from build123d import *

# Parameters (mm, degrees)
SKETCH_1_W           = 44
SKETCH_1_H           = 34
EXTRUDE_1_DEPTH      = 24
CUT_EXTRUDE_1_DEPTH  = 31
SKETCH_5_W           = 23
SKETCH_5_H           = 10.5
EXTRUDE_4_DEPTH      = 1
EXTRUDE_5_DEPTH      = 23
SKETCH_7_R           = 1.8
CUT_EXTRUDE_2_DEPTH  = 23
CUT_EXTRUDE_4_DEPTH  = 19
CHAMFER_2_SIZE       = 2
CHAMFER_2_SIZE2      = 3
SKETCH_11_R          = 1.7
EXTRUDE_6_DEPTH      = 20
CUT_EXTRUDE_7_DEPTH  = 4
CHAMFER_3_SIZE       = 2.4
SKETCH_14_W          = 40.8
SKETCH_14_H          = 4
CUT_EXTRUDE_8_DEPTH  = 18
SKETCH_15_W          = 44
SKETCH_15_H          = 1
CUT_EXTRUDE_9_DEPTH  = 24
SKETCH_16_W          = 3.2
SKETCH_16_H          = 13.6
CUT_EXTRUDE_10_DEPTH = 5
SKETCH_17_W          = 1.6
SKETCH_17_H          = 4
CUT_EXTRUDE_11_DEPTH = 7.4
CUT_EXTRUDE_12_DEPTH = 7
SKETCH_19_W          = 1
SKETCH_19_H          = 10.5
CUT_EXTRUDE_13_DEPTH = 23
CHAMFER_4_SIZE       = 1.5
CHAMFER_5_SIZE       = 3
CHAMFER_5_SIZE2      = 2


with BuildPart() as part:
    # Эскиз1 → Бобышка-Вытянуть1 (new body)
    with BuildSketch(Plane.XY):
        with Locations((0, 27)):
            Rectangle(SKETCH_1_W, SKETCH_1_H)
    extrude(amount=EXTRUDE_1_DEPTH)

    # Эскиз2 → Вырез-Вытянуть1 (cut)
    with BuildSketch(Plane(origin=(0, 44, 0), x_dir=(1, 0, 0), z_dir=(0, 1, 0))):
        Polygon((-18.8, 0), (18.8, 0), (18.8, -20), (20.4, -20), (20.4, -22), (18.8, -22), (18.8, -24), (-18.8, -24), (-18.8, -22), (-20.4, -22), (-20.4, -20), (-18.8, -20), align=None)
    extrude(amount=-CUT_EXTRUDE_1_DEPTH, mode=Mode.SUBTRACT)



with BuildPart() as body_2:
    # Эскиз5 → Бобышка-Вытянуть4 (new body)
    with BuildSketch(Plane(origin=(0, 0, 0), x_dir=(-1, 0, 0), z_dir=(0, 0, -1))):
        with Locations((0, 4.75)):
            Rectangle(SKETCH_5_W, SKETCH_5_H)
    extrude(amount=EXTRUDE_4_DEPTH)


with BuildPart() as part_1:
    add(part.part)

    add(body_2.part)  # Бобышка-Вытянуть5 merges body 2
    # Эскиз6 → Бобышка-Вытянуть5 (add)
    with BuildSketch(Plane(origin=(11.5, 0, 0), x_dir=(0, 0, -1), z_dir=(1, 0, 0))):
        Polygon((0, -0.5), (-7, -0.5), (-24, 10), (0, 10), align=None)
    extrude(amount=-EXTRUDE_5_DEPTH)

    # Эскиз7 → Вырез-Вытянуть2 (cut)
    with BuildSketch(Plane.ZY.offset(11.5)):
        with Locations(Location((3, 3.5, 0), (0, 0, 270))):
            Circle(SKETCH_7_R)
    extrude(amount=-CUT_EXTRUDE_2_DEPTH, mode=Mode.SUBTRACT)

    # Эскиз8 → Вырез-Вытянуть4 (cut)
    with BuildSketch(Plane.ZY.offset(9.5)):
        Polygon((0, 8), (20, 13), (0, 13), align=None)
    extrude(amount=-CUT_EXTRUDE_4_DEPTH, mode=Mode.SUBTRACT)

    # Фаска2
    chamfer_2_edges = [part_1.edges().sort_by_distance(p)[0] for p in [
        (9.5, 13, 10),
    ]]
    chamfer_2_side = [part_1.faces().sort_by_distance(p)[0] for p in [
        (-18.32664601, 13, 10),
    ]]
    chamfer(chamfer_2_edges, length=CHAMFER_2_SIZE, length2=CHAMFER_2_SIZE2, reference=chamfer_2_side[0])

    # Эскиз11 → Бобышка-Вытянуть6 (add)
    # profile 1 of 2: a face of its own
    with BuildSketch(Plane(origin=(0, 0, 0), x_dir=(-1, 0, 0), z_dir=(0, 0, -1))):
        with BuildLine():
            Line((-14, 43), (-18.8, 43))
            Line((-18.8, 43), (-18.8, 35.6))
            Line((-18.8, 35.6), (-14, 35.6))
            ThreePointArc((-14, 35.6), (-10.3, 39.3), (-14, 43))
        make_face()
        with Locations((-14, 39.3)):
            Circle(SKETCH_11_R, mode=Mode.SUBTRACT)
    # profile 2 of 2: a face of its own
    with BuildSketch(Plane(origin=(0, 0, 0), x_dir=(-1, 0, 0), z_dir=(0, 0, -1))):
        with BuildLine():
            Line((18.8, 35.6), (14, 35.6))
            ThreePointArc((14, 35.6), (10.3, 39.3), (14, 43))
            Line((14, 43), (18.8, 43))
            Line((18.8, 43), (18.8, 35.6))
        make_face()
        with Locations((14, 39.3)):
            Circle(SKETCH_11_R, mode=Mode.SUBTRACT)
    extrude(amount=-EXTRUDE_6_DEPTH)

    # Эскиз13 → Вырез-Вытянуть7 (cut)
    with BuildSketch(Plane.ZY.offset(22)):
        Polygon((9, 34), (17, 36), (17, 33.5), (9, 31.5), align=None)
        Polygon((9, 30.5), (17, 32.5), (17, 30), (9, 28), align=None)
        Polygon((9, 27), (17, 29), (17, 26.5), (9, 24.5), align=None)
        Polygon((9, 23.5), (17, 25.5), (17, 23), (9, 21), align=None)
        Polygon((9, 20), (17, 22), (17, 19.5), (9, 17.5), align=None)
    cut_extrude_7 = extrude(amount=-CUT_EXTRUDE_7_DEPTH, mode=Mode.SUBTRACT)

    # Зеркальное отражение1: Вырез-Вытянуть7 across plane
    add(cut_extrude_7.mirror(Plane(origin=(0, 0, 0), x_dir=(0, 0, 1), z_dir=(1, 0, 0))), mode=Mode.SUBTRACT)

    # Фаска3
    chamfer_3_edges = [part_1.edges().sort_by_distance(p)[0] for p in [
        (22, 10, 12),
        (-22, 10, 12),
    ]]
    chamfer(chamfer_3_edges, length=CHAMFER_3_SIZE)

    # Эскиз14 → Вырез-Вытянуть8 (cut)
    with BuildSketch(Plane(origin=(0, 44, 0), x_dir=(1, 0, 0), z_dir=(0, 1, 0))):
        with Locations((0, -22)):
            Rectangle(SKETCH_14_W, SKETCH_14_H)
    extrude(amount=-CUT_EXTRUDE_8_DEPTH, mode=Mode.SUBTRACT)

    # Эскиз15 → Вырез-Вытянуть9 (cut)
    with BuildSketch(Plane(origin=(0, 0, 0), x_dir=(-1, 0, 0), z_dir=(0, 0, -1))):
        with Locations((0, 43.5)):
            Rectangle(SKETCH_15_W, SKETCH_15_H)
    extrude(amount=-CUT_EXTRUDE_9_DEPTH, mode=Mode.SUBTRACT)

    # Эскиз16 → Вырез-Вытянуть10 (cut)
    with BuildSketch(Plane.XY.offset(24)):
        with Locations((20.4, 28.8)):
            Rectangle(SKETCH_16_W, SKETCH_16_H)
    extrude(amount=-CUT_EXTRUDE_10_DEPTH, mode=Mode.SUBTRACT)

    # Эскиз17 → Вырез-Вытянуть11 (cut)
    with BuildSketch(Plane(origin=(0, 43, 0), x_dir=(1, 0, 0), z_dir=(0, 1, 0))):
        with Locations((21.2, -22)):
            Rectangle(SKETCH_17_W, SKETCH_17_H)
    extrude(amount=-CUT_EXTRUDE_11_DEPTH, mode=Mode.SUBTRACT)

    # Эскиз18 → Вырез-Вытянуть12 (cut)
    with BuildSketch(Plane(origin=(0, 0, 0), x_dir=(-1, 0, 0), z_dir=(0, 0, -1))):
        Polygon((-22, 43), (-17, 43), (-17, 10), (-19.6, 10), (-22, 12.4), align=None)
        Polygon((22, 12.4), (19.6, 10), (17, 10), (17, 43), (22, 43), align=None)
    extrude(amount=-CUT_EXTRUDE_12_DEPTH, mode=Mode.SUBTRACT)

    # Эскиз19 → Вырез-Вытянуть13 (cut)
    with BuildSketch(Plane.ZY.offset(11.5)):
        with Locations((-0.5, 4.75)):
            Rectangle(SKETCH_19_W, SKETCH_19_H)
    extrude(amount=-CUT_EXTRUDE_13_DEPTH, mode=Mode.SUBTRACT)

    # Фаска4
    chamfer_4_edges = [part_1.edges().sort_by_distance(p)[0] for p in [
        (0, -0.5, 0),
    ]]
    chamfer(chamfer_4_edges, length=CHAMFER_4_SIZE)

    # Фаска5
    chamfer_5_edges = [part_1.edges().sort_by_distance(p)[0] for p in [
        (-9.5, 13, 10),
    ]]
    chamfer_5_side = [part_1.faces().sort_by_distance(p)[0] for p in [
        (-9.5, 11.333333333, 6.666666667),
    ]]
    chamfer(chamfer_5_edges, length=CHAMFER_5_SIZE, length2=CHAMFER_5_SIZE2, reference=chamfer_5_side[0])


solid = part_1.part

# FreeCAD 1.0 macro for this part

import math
import FreeCAD as App
import Part
import Sketcher

V = App.Vector
Q = App.Units.Quantity


def edges_at(feature, points):
    """Names of the edges that pass closest to the given points."""
    edges = feature.Shape.Edges
    near = lambda p: min(range(len(edges)), key=lambda i: edges[i].distToShape(Part.Vertex(*p))[0])
    return sorted({f"Edge{near(p) + 1}" for p in points})


def add_polygon(sketch, points):
    """Adds a closed chain of lines whose ends are joined by coincident constraints."""
    first, n = sketch.GeometryCount, len(points)
    for a, b in zip(points, points[1:] + points[:1]):
        sketch.addGeometry(Part.LineSegment(App.Vector(*a, 0), App.Vector(*b, 0)), False)
    for i in range(n):
        sketch.addConstraint(Sketcher.Constraint("Coincident", first + i, 2, first + (i + 1) % n, 1))

doc = App.newDocument("Part")
body = doc.addObject("PartDesign::Body", "Body")

sketch1 = doc.addObject("Sketcher::SketchObject", "Sketch")
body.addObject(sketch1)
sketch1.AttachmentSupport = (doc.XY_Plane, [""])
sketch1.MapMode = "FlatFace"
add_polygon(sketch1, [(-22, 44), (-22, 10), (22, 10), (22, 44)])
sketch1.addConstraint([
    Sketcher.Constraint("Vertical", 0),
    Sketcher.Constraint("Horizontal", 1),
    Sketcher.Constraint("Vertical", 2),
    Sketcher.Constraint("Horizontal", 3),
    Sketcher.Constraint("DistanceX", 1, 1, 1, 2, Q("44 mm")),
    Sketcher.Constraint("DistanceY", 0, 2, 0, 1, Q("34 mm")),
    Sketcher.Constraint("DistanceX", 0, 2, -1, 1, Q("22 mm")),
    Sketcher.Constraint("DistanceY", -1, 1, 0, 2, Q("10 mm")),
])
pad1 = doc.addObject("PartDesign::Pad", "Pad")
body.addObject(pad1)
pad1.Profile = sketch1
pad1.Length = 24

sketch2 = doc.addObject("Sketcher::SketchObject", "Sketch001")
body.addObject(sketch2)
sketch2.AttachmentSupport = (doc.XZ_Plane, [""])
sketch2.MapMode = "FlatFace"
sketch2.AttachmentOffset = App.Placement(V(0, 0, -44), App.Rotation())
add_polygon(sketch2, [(18.8, 0), (-18.8, 0), (-18.8, 20), (-20.4, 20), (-20.4, 22), (-18.8, 22), (-18.8, 24), (18.8, 24), (18.8, 22), (20.4, 22), (20.4, 20), (18.8, 20)])
sketch2.addConstraint([
    Sketcher.Constraint("Horizontal", 0),
    Sketcher.Constraint("Vertical", 1),
    Sketcher.Constraint("Horizontal", 2),
    Sketcher.Constraint("Vertical", 3),
    Sketcher.Constraint("Horizontal", 4),
    Sketcher.Constraint("Vertical", 5),
    Sketcher.Constraint("Horizontal", 6),
    Sketcher.Constraint("Vertical", 7),
    Sketcher.Constraint("Horizontal", 8),
    Sketcher.Constraint("Vertical", 9),
    Sketcher.Constraint("Horizontal", 10),
    Sketcher.Constraint("Vertical", 11),
    Sketcher.Constraint("Symmetric", 0, 2, 11, 2, -1, 1),
    Sketcher.Constraint("Symmetric", 4, 2, 7, 2, -2),
    Sketcher.Constraint("Symmetric", 2, 2, 9, 2, -2),
    Sketcher.Constraint("Vertical", 1, 2, 4, 2),
    Sketcher.Constraint("Equal", 3, 5),
    Sketcher.Constraint("DistanceY", 1, 1, 1, 2, Q("20 mm")),
    Sketcher.Constraint("DistanceY", 3, 1, 3, 2, Q("2 mm")),
    Sketcher.Constraint("DistanceX", 0, 2, 0, 1, Q("37.6 mm")),
    Sketcher.Constraint("DistanceX", 2, 2, 2, 1, Q("1.6 mm")),
])
pocket1 = doc.addObject("PartDesign::Pocket", "Pocket")
body.addObject(pocket1)
pocket1.Profile = sketch2
pocket1.Length = 31
pocket1.Reversed = True
body2 = doc.addObject("PartDesign::Body", "Body001")

sketch3 = doc.addObject("Sketcher::SketchObject", "Sketch002")
body2.addObject(sketch3)
sketch3.AttachmentSupport = (doc.getObject("XY_Plane001"), [""])
sketch3.MapMode = "FlatFace"
add_polygon(sketch3, [(12, 10), (12, 0), (-12, 0), (-12, 10)])
sketch3.addConstraint([
    Sketcher.Constraint("Vertical", 0),
    Sketcher.Constraint("Horizontal", 1),
    Sketcher.Constraint("Vertical", 2),
    Sketcher.Constraint("Horizontal", 3),
    Sketcher.Constraint("DistanceX", 1, 2, 1, 1, Q("23 mm")),
    Sketcher.Constraint("DistanceY", 0, 2, 0, 1, Q("10.5 mm")),
    Sketcher.Constraint("DistanceY", -1, 1, 2, 2, Q("10 mm")),
    Sketcher.Constraint("DistanceX", -1, 1, 0, 2, Q("11.5 mm")),
])
pad2 = doc.addObject("PartDesign::Pad", "Pad001")
body2.addObject(pad2)
pad2.Profile = sketch3
pad2.Length = 1
pad2.Reversed = True
body.AllowCompound = True
doc.recompute()

boolean = doc.addObject("PartDesign::Boolean", "Boolean")
body.addObject(boolean)
boolean.Type = "Fuse"
boolean.addObjects([body2])

sketch4 = doc.addObject("Sketcher::SketchObject", "Sketch003")
body.addObject(sketch4)
sketch4.AttachmentSupport = (doc.YZ_Plane, [""])
sketch4.MapMode = "FlatFace"
sketch4.AttachmentOffset = App.Placement(V(0, 0, 11.5), App.Rotation())
add_polygon(sketch4, [(0, 7), (0, 0), (10, 0), (10, 24)])
sketch4.addConstraint([
    Sketcher.Constraint("Vertical", 0),
    Sketcher.Constraint("Horizontal", 1),
    Sketcher.Constraint("Vertical", 2),
    Sketcher.Constraint("PointOnObject", 0, 2, -1),
    Sketcher.Constraint("DistanceY", 0, 2, 0, 1, Q("7 mm")),
    Sketcher.Constraint("DistanceY", 2, 1, 2, 2, Q("24 mm")),
    Sketcher.Constraint("DistanceX", 1, 1, 1, 2, Q("10.5 mm")),
    Sketcher.Constraint("DistanceX", -1, 1, 1, 2, Q("10 mm")),
])
pad3 = doc.addObject("PartDesign::Pad", "Pad002")
body.addObject(pad3)
pad3.Profile = sketch4
pad3.Length = 23
pad3.Reversed = True

sketch5 = doc.addObject("Sketcher::SketchObject", "Sketch004")
body.addObject(sketch5)
sketch5.AttachmentSupport = (doc.YZ_Plane, [""])
sketch5.MapMode = "FlatFace"
sketch5.AttachmentOffset = App.Placement(V(0, 0, -11.5), App.Rotation())
sketch5.addGeometry(Part.Circle(V(3.5, 3, 0), V(0, 0, 1), 1.8), False)
sketch5.addConstraint([
    Sketcher.Constraint("Diameter", 0, Q("3.6 mm")),
    Sketcher.Constraint("DistanceY", -1, 1, 0, 3, Q("3 mm")),
    Sketcher.Constraint("DistanceX", -1, 1, 0, 3, Q("3.5 mm")),
])
pocket2 = doc.addObject("PartDesign::Pocket", "Pocket001")
body.addObject(pocket2)
pocket2.Profile = sketch5
pocket2.Length = 23
pocket2.Reversed = True

sketch6 = doc.addObject("Sketcher::SketchObject", "Sketch005")
body.addObject(sketch6)
sketch6.AttachmentSupport = (doc.YZ_Plane, [""])
sketch6.MapMode = "FlatFace"
sketch6.AttachmentOffset = App.Placement(V(0, 0, -9.5), App.Rotation())
add_polygon(sketch6, [(8, 0), (13, 20), (13, 0)])
sketch6.addConstraint([
    Sketcher.Constraint("Vertical", 1),
    Sketcher.Constraint("Horizontal", 2),
    Sketcher.Constraint("PointOnObject", 1, 2, -1),
    Sketcher.Constraint("DistanceX", 2, 2, 2, 1, Q("5 mm")),
    Sketcher.Constraint("DistanceY", 1, 2, 1, 1, Q("20 mm")),
    Sketcher.Constraint("DistanceX", -1, 1, 0, 2, Q("13 mm")),
])
pocket3 = doc.addObject("PartDesign::Pocket", "Pocket002")
body.addObject(pocket3)
pocket3.Profile = sketch6
pocket3.Length = 19
pocket3.Reversed = True
doc.recompute()

chamfer = doc.addObject("PartDesign::Chamfer", "Chamfer")
body.addObject(chamfer)
chamfer.Base = (pocket3, edges_at(pocket3, [(9.5, 13, 10)]))
chamfer.ChamferType = "Two distances"
chamfer.Size = 2
chamfer.Size2 = 3

sketch7 = doc.addObject("Sketcher::SketchObject", "Sketch006")
body.addObject(sketch7)
sketch7.AttachmentSupport = (doc.XY_Plane, [""])
sketch7.MapMode = "FlatFace"
sketch7.addGeometry([
    Part.LineSegment(V(14, 43, 0), V(18.8, 43, 0)),
    Part.LineSegment(V(18.8, 43, 0), V(18.8, 35.6, 0)),
    Part.LineSegment(V(18.8, 35.6, 0), V(14, 35.6, 0)),
    Part.ArcOfCircle(Part.Circle(V(14, 39.3, 0), V(0, 0, 1), 3.7), math.radians(90), math.radians(270)),
    Part.Circle(V(14, 39.3, 0), V(0, 0, 1), 1.7),
    Part.LineSegment(V(-14, 35.6, 0), V(-18.8, 35.6, 0)),
    Part.LineSegment(V(-18.8, 35.6, 0), V(-18.8, 43, 0)),
    Part.LineSegment(V(-18.8, 43, 0), V(-14, 43, 0)),
    Part.ArcOfCircle(Part.Circle(V(-14, 39.3, 0), V(0, 0, 1), 3.7), math.radians(-90), math.radians(90)),
    Part.Circle(V(-14, 39.3, 0), V(0, 0, 1), 1.7),
], False)
sketch7.addConstraint([
    Sketcher.Constraint("Coincident", 0, 2, 1, 1),
    Sketcher.Constraint("Coincident", 1, 2, 2, 1),
    Sketcher.Constraint("Tangent", 2, 2, 3, 2),
    Sketcher.Constraint("Tangent", 3, 1, 0, 1),
    Sketcher.Constraint("Coincident", 5, 2, 6, 1),
    Sketcher.Constraint("Coincident", 6, 2, 7, 1),
    Sketcher.Constraint("Tangent", 7, 2, 8, 2),
    Sketcher.Constraint("Tangent", 8, 1, 5, 1),
    Sketcher.Constraint("Horizontal", 0),
    Sketcher.Constraint("Vertical", 1),
    Sketcher.Constraint("Horizontal", 2),
    Sketcher.Constraint("Horizontal", 5),
    Sketcher.Constraint("Vertical", 6),
    Sketcher.Constraint("Horizontal", 7),
    Sketcher.Constraint("Coincident", 4, 3, 3, 3),
    Sketcher.Constraint("Coincident", 9, 3, 8, 3),
    Sketcher.Constraint("Equal", 3, 8),
    Sketcher.Constraint("Equal", 4, 9),
    Sketcher.Constraint("Symmetric", 3, 3, 8, 3, -2),
    Sketcher.Constraint("Equal", 2, 5),
    Sketcher.Constraint("Diameter", 4, Q("3.4 mm")),
    Sketcher.Constraint("Radius", 3, Q("3.7 mm")),
    Sketcher.Constraint("DistanceX", 0, 1, 0, 2, Q("4.8 mm")),
    Sketcher.Constraint("DistanceX", -1, 1, 3, 3, Q("14 mm")),
    Sketcher.Constraint("DistanceY", -1, 1, 0, 2, Q("43 mm")),
])
pad4 = doc.addObject("PartDesign::Pad", "Pad003")
body.addObject(pad4)
pad4.Profile = sketch7
pad4.Length = 20

sketch8 = doc.addObject("Sketcher::SketchObject", "Sketch007")
body.addObject(sketch8)
sketch8.AttachmentSupport = (doc.YZ_Plane, [""])
sketch8.MapMode = "FlatFace"
sketch8.AttachmentOffset = App.Placement(V(0, 0, -22), App.Rotation())
add_polygon(sketch8, [(36, 17), (34, 9), (31.5, 9), (33.5, 17)])
add_polygon(sketch8, [(32.5, 17), (30.5, 9), (28, 9), (30, 17)])
add_polygon(sketch8, [(29, 17), (27, 9), (24.5, 9), (26.5, 17)])
add_polygon(sketch8, [(25.5, 17), (23.5, 9), (21, 9), (23, 17)])
add_polygon(sketch8, [(22, 17), (20, 9), (17.5, 9), (19.5, 17)])
sketch8.addConstraint([
    Sketcher.Constraint("Horizontal", 1),
    Sketcher.Constraint("Horizontal", 3),
    Sketcher.Constraint("Horizontal", 5),
    Sketcher.Constraint("Horizontal", 7),
    Sketcher.Constraint("Horizontal", 9),
    Sketcher.Constraint("Horizontal", 11),
    Sketcher.Constraint("Horizontal", 13),
    Sketcher.Constraint("Horizontal", 15),
    Sketcher.Constraint("Horizontal", 17),
    Sketcher.Constraint("Horizontal", 19),
    Sketcher.Constraint("Parallel", 0, 2),
    Sketcher.Constraint("Parallel", 2, 4),
    Sketcher.Constraint("Parallel", 4, 6),
    Sketcher.Constraint("Parallel", 6, 8),
    Sketcher.Constraint("Parallel", 8, 10),
    Sketcher.Constraint("Parallel", 10, 12),
    Sketcher.Constraint("Parallel", 12, 14),
    Sketcher.Constraint("Parallel", 14, 16),
    Sketcher.Constraint("Parallel", 16, 18),
    Sketcher.Constraint("Horizontal", 1, 2, 4, 2),
    Sketcher.Constraint("Horizontal", 3, 2, 6, 2),
    Sketcher.Constraint("Horizontal", 5, 2, 8, 2),
    Sketcher.Constraint("Horizontal", 7, 2, 10, 2),
    Sketcher.Constraint("Horizontal", 9, 2, 12, 2),
    Sketcher.Constraint("Horizontal", 11, 2, 14, 2),
    Sketcher.Constraint("Horizontal", 13, 2, 16, 2),
    Sketcher.Constraint("Horizontal", 15, 2, 18, 2),
    Sketcher.Constraint("Equal", 3, 5),
    Sketcher.Constraint("Equal", 7, 9),
    Sketcher.Constraint("Equal", 11, 13),
    Sketcher.Constraint("Equal", 15, 17),
    Sketcher.Constraint("DistanceX", 1, 2, 1, 1, Q("2.5 mm")),
    Sketcher.Constraint("DistanceX", -1, 1, 0, 2, Q("34 mm")),
    Sketcher.Constraint("DistanceY", -1, 1, 0, 2, Q("9 mm")),
    Sketcher.Constraint("DistanceY", -1, 1, 2, 2, Q("17 mm")),
    Sketcher.Constraint("DistanceX", -1, 1, 3, 2, Q("36 mm")),
    Sketcher.Constraint("DistanceX", -1, 1, 5, 2, Q("28 mm")),
    Sketcher.Constraint("DistanceX", -1, 1, 8, 2, Q("27 mm")),
    Sketcher.Constraint("DistanceX", -1, 1, 13, 2, Q("21 mm")),
    Sketcher.Constraint("DistanceX", -1, 1, 16, 2, Q("20 mm")),
])
pocket4 = doc.addObject("PartDesign::Pocket", "Pocket003")
body.addObject(pocket4)
pocket4.Profile = sketch8
pocket4.Length = 4
pocket4.Reversed = True
doc.recompute()

mirrored = doc.addObject("PartDesign::Mirrored", "Mirrored")
body.addObject(mirrored)
mirrored.Originals = [pocket4]
mirrored.MirrorPlane = (doc.YZ_Plane, [""])
body.Tip = mirrored
doc.recompute()

chamfer2 = doc.addObject("PartDesign::Chamfer", "Chamfer001")
body.addObject(chamfer2)
chamfer2.Base = (mirrored, edges_at(mirrored, [(22, 10, 12), (-22, 10, 12)]))
chamfer2.Size = 2.4

sketch9 = doc.addObject("Sketcher::SketchObject", "Sketch008")
body.addObject(sketch9)
sketch9.AttachmentSupport = (doc.XZ_Plane, [""])
sketch9.MapMode = "FlatFace"
sketch9.AttachmentOffset = App.Placement(V(0, 0, -44), App.Rotation())
add_polygon(sketch9, [(-20.4, 20), (-20.4, 24), (20.4, 24), (20.4, 20)])
sketch9.addConstraint([
    Sketcher.Constraint("Vertical", 0),
    Sketcher.Constraint("Horizontal", 1),
    Sketcher.Constraint("Vertical", 2),
    Sketcher.Constraint("Horizontal", 3),
    Sketcher.Constraint("DistanceY", 0, 1, 0, 2, Q("4 mm")),
    Sketcher.Constraint("DistanceX", 1, 1, 1, 2, Q("40.8 mm")),
    Sketcher.Constraint("DistanceY", -1, 1, 0, 2, Q("24 mm")),
    Sketcher.Constraint("DistanceX", 0, 2, -1, 1, Q("20.4 mm")),
])
pocket5 = doc.addObject("PartDesign::Pocket", "Pocket004")
body.addObject(pocket5)
pocket5.Profile = sketch9
pocket5.Length = 18
pocket5.Reversed = True

sketch10 = doc.addObject("Sketcher::SketchObject", "Sketch009")
body.addObject(sketch10)
sketch10.AttachmentSupport = (doc.XY_Plane, [""])
sketch10.MapMode = "FlatFace"
add_polygon(sketch10, [(22, 44), (22, 43), (-22, 43), (-22, 44)])
sketch10.addConstraint([
    Sketcher.Constraint("Vertical", 0),
    Sketcher.Constraint("Horizontal", 1),
    Sketcher.Constraint("Vertical", 2),
    Sketcher.Constraint("Horizontal", 3),
    Sketcher.Constraint("DistanceX", 1, 2, 1, 1, Q("44 mm")),
    Sketcher.Constraint("DistanceY", 0, 2, 0, 1, Q("1 mm")),
    Sketcher.Constraint("DistanceX", -1, 1, 0, 2, Q("22 mm")),
    Sketcher.Constraint("DistanceY", -1, 1, 0, 2, Q("43 mm")),
])
pocket6 = doc.addObject("PartDesign::Pocket", "Pocket005")
body.addObject(pocket6)
pocket6.Profile = sketch10
pocket6.Length = 24
pocket6.Reversed = True

sketch11 = doc.addObject("Sketcher::SketchObject", "Sketch010")
body.addObject(sketch11)
sketch11.AttachmentSupport = (doc.XY_Plane, [""])
sketch11.MapMode = "FlatFace"
sketch11.AttachmentOffset = App.Placement(V(0, 0, 24), App.Rotation())
add_polygon(sketch11, [(18.8, 35.6), (18.8, 22), (22, 22), (22, 35.6)])
sketch11.addConstraint([
    Sketcher.Constraint("Vertical", 0),
    Sketcher.Constraint("Horizontal", 1),
    Sketcher.Constraint("Vertical", 2),
    Sketcher.Constraint("Horizontal", 3),
    Sketcher.Constraint("DistanceX", 1, 1, 1, 2, Q("3.2 mm")),
    Sketcher.Constraint("DistanceY", 0, 2, 0, 1, Q("13.6 mm")),
    Sketcher.Constraint("DistanceY", -1, 1, 0, 2, Q("22 mm")),
    Sketcher.Constraint("DistanceX", -1, 1, 1, 2, Q("22 mm")),
])
pocket7 = doc.addObject("PartDesign::Pocket", "Pocket006")
body.addObject(pocket7)
pocket7.Profile = sketch11
pocket7.Length = 5

sketch12 = doc.addObject("Sketcher::SketchObject", "Sketch011")
body.addObject(sketch12)
sketch12.AttachmentSupport = (doc.XZ_Plane, [""])
sketch12.MapMode = "FlatFace"
sketch12.AttachmentOffset = App.Placement(V(0, 0, -43), App.Rotation())
add_polygon(sketch12, [(20.4, 20), (20.4, 24), (22, 24), (22, 20)])
sketch12.addConstraint([
    Sketcher.Constraint("Vertical", 0),
    Sketcher.Constraint("Horizontal", 1),
    Sketcher.Constraint("Vertical", 2),
    Sketcher.Constraint("Horizontal", 3),
    Sketcher.Constraint("DistanceY", 0, 1, 0, 2, Q("4 mm")),
    Sketcher.Constraint("DistanceX", 1, 1, 1, 2, Q("1.6 mm")),
    Sketcher.Constraint("DistanceY", -1, 1, 0, 2, Q("24 mm")),
    Sketcher.Constraint("DistanceX", -1, 1, 1, 2, Q("22 mm")),
])
pocket8 = doc.addObject("PartDesign::Pocket", "Pocket007")
body.addObject(pocket8)
pocket8.Profile = sketch12
pocket8.Length = 7.4
pocket8.Reversed = True

sketch13 = doc.addObject("Sketcher::SketchObject", "Sketch012")
body.addObject(sketch13)
sketch13.AttachmentSupport = (doc.XY_Plane, [""])
sketch13.MapMode = "FlatFace"
add_polygon(sketch13, [(17, 43), (22, 43), (22, 12.4), (19.6, 10), (17, 10)])
add_polygon(sketch13, [(-19.6, 10), (-22, 12.4), (-22, 43), (-17, 43), (-17, 10)])
sketch13.addConstraint([
    Sketcher.Constraint("Horizontal", 0),
    Sketcher.Constraint("Vertical", 1),
    Sketcher.Constraint("Horizontal", 3),
    Sketcher.Constraint("Vertical", 4),
    Sketcher.Constraint("Vertical", 6),
    Sketcher.Constraint("Horizontal", 7),
    Sketcher.Constraint("Vertical", 8),
    Sketcher.Constraint("Horizontal", 9),
    Sketcher.Constraint("Symmetric", 1, 2, 5, 2, -2),
    Sketcher.Constraint("Symmetric", 4, 2, 7, 2, -2),
    Sketcher.Constraint("Symmetric", 2, 2, 9, 2, -2),
    Sketcher.Constraint("Perpendicular", 2, 5),
    Sketcher.Constraint("DistanceX", 0, 1, 0, 2, Q("5 mm")),
    Sketcher.Constraint("DistanceY", 4, 1, 4, 2, Q("33 mm")),
    Sketcher.Constraint("DistanceX", 3, 2, 3, 1, Q("2.6 mm")),
    Sketcher.Constraint("DistanceX", -1, 1, 0, 2, Q("22 mm")),
    Sketcher.Constraint("DistanceY", -1, 1, 0, 2, Q("43 mm")),
])
pocket9 = doc.addObject("PartDesign::Pocket", "Pocket008")
body.addObject(pocket9)
pocket9.Profile = sketch13
pocket9.Length = 7
pocket9.Reversed = True

sketch14 = doc.addObject("Sketcher::SketchObject", "Sketch013")
body.addObject(sketch14)
sketch14.AttachmentSupport = (doc.YZ_Plane, [""])
sketch14.MapMode = "FlatFace"
sketch14.AttachmentOffset = App.Placement(V(0, 0, -11.5), App.Rotation())
add_polygon(sketch14, [(10, -1), (-0.5, -1), (-0.5, 0), (10, 0)])
sketch14.addConstraint([
    Sketcher.Constraint("Horizontal", 0),
    Sketcher.Constraint("Vertical", 1),
    Sketcher.Constraint("Horizontal", 2),
    Sketcher.Constraint("Vertical", 3),
    Sketcher.Constraint("PointOnObject", 1, 2, -1),
    Sketcher.Constraint("DistanceY", 1, 1, 1, 2, Q("1 mm")),
    Sketcher.Constraint("DistanceX", 0, 2, 0, 1, Q("10.5 mm")),
    Sketcher.Constraint("DistanceX", -1, 1, 2, 2, Q("10 mm")),
])
pocket10 = doc.addObject("PartDesign::Pocket", "Pocket009")
body.addObject(pocket10)
pocket10.Profile = sketch14
pocket10.Length = 23
pocket10.Reversed = True
doc.recompute()

chamfer3 = doc.addObject("PartDesign::Chamfer", "Chamfer002")
body.addObject(chamfer3)
chamfer3.Base = (pocket10, edges_at(pocket10, [(0, -0.5, 0)]))
chamfer3.Size = 1.5
doc.recompute()

chamfer4 = doc.addObject("PartDesign::Chamfer", "Chamfer003")
body.addObject(chamfer4)
chamfer4.Base = (chamfer3, edges_at(chamfer3, [(-9.5, 13, 10)]))
chamfer4.ChamferType = "Two distances"
chamfer4.Size = 3
chamfer4.Size2 = 2
chamfer4.FlipDirection = True

doc.recompute()
